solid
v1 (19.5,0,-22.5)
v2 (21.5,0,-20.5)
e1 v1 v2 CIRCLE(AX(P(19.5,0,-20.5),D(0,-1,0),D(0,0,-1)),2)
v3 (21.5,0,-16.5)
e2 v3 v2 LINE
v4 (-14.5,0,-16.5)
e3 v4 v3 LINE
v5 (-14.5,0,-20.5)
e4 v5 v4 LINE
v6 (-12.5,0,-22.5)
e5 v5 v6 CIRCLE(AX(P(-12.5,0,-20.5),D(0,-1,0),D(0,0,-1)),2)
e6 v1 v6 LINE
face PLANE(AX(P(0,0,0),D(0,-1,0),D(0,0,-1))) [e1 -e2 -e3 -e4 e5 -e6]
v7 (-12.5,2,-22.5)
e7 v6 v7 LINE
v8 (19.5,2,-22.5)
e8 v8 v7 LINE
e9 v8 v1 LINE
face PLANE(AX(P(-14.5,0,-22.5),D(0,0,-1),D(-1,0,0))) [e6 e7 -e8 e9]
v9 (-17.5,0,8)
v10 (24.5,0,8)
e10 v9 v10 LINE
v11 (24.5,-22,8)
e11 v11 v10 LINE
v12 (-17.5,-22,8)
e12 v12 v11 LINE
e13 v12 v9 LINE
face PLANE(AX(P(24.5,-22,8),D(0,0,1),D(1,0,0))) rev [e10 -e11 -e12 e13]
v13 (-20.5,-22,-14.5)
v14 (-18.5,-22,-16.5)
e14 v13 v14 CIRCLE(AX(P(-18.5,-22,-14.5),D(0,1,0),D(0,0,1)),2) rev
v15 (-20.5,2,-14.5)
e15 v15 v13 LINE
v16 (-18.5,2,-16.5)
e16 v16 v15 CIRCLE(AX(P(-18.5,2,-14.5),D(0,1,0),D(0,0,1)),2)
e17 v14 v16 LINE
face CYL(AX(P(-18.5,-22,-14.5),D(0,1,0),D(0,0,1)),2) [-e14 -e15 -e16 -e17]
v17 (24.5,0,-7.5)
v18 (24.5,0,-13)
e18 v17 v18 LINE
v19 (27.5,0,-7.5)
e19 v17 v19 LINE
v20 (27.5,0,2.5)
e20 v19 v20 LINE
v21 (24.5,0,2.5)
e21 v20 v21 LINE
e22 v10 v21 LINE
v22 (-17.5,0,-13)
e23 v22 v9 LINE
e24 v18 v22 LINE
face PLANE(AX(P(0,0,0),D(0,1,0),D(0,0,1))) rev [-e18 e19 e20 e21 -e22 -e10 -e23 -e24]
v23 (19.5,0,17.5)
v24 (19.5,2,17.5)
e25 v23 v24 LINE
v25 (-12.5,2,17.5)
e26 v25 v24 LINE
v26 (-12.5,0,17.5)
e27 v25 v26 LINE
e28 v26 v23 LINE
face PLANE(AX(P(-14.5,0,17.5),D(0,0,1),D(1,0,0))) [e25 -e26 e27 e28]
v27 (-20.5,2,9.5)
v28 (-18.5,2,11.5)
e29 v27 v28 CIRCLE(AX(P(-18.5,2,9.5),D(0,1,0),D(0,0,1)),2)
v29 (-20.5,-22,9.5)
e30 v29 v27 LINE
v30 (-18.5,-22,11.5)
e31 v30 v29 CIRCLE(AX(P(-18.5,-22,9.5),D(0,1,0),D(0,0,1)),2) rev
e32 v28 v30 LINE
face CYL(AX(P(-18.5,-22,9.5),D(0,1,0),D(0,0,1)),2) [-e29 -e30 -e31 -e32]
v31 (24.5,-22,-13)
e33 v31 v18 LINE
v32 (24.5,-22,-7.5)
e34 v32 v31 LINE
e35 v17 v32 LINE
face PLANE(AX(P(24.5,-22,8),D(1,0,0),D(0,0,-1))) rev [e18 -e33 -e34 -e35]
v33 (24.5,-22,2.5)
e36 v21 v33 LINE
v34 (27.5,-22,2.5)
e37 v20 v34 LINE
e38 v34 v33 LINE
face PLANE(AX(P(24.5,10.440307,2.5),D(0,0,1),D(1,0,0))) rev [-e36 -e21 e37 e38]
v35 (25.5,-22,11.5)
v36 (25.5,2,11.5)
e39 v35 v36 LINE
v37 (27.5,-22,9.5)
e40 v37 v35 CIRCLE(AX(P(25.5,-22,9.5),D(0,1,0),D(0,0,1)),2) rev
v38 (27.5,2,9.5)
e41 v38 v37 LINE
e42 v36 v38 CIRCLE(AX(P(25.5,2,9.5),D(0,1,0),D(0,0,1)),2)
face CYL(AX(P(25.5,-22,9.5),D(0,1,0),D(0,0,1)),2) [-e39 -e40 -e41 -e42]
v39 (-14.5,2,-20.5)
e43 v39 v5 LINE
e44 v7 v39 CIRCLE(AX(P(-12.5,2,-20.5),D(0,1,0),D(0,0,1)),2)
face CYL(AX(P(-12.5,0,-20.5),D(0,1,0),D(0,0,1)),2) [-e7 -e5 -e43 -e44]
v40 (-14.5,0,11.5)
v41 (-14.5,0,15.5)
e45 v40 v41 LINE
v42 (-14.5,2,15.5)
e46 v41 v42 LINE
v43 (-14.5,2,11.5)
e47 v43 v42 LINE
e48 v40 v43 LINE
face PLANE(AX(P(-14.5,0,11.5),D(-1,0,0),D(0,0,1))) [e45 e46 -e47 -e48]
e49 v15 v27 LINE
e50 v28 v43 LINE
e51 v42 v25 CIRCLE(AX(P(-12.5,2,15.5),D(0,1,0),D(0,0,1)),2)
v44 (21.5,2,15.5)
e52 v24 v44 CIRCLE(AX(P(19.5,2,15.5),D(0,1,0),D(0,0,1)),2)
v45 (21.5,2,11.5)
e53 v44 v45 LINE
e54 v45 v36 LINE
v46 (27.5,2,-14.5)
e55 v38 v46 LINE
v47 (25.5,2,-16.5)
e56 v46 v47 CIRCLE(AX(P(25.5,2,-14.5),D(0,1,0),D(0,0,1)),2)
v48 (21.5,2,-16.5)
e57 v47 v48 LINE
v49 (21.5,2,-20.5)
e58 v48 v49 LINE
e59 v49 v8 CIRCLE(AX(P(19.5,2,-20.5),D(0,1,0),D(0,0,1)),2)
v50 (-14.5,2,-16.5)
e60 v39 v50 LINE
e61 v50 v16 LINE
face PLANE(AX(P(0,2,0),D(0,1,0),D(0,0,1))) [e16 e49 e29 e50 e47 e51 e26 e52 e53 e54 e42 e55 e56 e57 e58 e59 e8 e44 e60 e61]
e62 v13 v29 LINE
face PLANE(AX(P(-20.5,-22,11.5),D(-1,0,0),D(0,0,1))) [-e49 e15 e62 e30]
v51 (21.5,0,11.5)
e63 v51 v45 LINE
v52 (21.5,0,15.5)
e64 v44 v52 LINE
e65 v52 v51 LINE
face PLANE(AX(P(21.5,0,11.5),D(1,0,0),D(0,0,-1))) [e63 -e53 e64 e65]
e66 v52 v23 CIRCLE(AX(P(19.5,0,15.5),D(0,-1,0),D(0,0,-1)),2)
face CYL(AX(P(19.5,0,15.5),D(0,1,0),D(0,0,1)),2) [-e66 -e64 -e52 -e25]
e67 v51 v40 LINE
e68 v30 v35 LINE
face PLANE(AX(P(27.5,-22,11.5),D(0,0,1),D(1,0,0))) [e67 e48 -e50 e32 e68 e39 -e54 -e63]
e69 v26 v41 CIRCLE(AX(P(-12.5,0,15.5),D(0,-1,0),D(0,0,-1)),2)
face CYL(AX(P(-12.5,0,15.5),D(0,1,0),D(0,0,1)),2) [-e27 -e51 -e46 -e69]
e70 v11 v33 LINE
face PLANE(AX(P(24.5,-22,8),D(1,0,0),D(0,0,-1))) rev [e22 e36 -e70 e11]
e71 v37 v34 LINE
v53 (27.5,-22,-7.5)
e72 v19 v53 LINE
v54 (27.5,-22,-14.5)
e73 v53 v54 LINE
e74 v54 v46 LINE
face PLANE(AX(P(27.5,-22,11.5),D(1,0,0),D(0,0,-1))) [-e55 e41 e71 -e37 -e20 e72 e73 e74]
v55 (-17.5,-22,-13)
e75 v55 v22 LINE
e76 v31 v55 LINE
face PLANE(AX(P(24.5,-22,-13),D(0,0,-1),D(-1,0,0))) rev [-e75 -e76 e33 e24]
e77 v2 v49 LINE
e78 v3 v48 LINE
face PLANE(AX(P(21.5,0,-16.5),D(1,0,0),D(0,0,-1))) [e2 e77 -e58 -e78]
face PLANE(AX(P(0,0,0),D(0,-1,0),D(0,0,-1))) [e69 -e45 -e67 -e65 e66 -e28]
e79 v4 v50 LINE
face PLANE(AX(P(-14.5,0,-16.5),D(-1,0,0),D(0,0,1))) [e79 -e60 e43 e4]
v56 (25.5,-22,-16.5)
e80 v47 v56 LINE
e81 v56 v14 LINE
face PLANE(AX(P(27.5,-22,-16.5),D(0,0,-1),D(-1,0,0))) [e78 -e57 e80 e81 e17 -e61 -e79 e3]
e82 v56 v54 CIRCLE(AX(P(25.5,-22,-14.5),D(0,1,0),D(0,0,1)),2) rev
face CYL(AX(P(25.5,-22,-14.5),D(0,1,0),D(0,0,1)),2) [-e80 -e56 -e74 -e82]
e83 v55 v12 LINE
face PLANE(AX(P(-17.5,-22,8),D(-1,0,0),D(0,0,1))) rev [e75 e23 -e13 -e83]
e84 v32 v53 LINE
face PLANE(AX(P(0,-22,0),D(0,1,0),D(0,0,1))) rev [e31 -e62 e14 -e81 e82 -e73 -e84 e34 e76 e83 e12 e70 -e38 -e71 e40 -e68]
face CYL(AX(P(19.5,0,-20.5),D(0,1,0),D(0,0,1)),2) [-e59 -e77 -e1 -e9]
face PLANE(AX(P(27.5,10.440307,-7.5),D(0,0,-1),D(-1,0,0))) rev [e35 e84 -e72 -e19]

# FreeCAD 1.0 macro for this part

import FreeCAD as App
import Part
import Sketcher


def edges_at(feature, points):
    """Names of the edges that pass closest to the given points."""
    edges = feature.Shape.Edges
    near = lambda p: min(range(len(edges)), key=lambda i: edges[i].distToShape(Part.Vertex(*p))[0])
    return sorted({f"Edge{near(p) + 1}" for p in points})

doc = App.newDocument("Part")
body = doc.addObject("PartDesign::Body", "Body")

# Sketch on XZ plane
sketch1 = body.newObject("Sketcher::SketchObject", "Sketch")
sketch1.AttachmentSupport = (doc.getObject("XZ_Plane"), [""])
sketch1.MapMode = "FlatFace"
sketch1.addGeometry([
    Part.LineSegment(App.Vector(27.5, 11.5, 0), App.Vector(27.5, -16.5, 0)),  # 0
    Part.LineSegment(App.Vector(27.5, -16.5, 0), App.Vector(-20.5, -16.5, 0)),  # 1
    Part.LineSegment(App.Vector(-20.5, -16.5, 0), App.Vector(-20.5, 11.5, 0)),  # 2
    Part.LineSegment(App.Vector(-20.5, 11.5, 0), App.Vector(27.5, 11.5, 0)),  # 3
    Part.LineSegment(App.Vector(-17.5, -13, 0), App.Vector(24.5, -13, 0)),  # 4
    Part.LineSegment(App.Vector(24.5, -13, 0), App.Vector(24.5, 8, 0)),  # 5
    Part.LineSegment(App.Vector(24.5, 8, 0), App.Vector(-17.5, 8, 0)),  # 6
    Part.LineSegment(App.Vector(-17.5, 8, 0), App.Vector(-17.5, -13, 0)),  # 7
], False)
sketch1.addConstraint([
    Sketcher.Constraint("Coincident", 0, 2, 1, 1),
    Sketcher.Constraint("Coincident", 1, 2, 2, 1),
    Sketcher.Constraint("Coincident", 2, 2, 3, 1),
    Sketcher.Constraint("Coincident", 3, 2, 0, 1),
    Sketcher.Constraint("Coincident", 4, 2, 5, 1),
    Sketcher.Constraint("Coincident", 5, 2, 6, 1),
    Sketcher.Constraint("Coincident", 6, 2, 7, 1),
    Sketcher.Constraint("Coincident", 7, 2, 4, 1),
    Sketcher.Constraint("Vertical", 0),
    Sketcher.Constraint("Horizontal", 1),
    Sketcher.Constraint("Vertical", 2),
    Sketcher.Constraint("Horizontal", 3),
    Sketcher.Constraint("Horizontal", 4),
    Sketcher.Constraint("Vertical", 5),
    Sketcher.Constraint("Horizontal", 6),
    Sketcher.Constraint("Vertical", 7),
    Sketcher.Constraint("DistanceX", 1, 2, 1, 1, 48.0),
    Sketcher.Constraint("DistanceX", 4, 1, 4, 2, 42.0),
    Sketcher.Constraint("DistanceY", 0, 2, 0, 1, 28.0),
    Sketcher.Constraint("DistanceY", 5, 1, 5, 2, 21.0),
    Sketcher.Constraint("DistanceY", 4, 2, -1, 1, 13.0),
    Sketcher.Constraint("DistanceX", 4, 2, 0, 2, 3.0),
    Sketcher.Constraint("DistanceX", -1, 1, 0, 2, 27.5),
    Sketcher.Constraint("DistanceY", 0, 2, -1, 1, 16.5),
])
pad1 = body.newObject("PartDesign::Pad", "Pad")
pad1.Profile = sketch1
pad1.Length = 22

# Sketch on XZ plane
sketch2 = body.newObject("Sketcher::SketchObject", "Sketch001")
sketch2.AttachmentSupport = (doc.getObject("XZ_Plane"), [""])
sketch2.MapMode = "FlatFace"
sketch2.addGeometry([
    Part.LineSegment(App.Vector(27.5, 11.5, 0), App.Vector(27.5, -16.5, 0)),
    Part.LineSegment(App.Vector(27.5, -16.5, 0), App.Vector(-20.5, -16.5, 0)),
    Part.LineSegment(App.Vector(-20.5, -16.5, 0), App.Vector(-20.5, 11.5, 0)),
    Part.LineSegment(App.Vector(-20.5, 11.5, 0), App.Vector(27.5, 11.5, 0)),
], False)
sketch2.addConstraint([
    Sketcher.Constraint("Coincident", 0, 2, 1, 1),
    Sketcher.Constraint("Coincident", 1, 2, 2, 1),
    Sketcher.Constraint("Coincident", 2, 2, 3, 1),
    Sketcher.Constraint("Coincident", 3, 2, 0, 1),
    Sketcher.Constraint("Vertical", 0),
    Sketcher.Constraint("Horizontal", 1),
    Sketcher.Constraint("Vertical", 2),
    Sketcher.Constraint("Horizontal", 3),
    Sketcher.Constraint("DistanceX", 1, 2, 1, 1, 48.0),
    Sketcher.Constraint("DistanceY", 0, 2, 0, 1, 28.0),
    Sketcher.Constraint("DistanceX", -1, 1, 0, 2, 27.5),
    Sketcher.Constraint("DistanceY", 0, 2, -1, 1, 16.5),
])
pad2 = body.newObject("PartDesign::Pad", "Pad001")
pad2.Profile = sketch2
pad2.Length = 2
pad2.Reversed = True
doc.recompute()

fillet = body.newObject("PartDesign::Fillet", "Fillet")
fillet.Base = (pad2, edges_at(pad2, [
    (27.5, -10, 11.5),
    (-20.5, -10, 11.5),
    (-20.5, -10, -16.5),
    (27.5, -10, -16.5),
]))
fillet.Radius = 2

# Sketch on XZ plane
sketch3 = body.newObject("Sketcher::SketchObject", "Sketch002")
sketch3.AttachmentSupport = (doc.getObject("XZ_Plane"), [""])
sketch3.MapMode = "FlatFace"
sketch3.AttachmentOffset = App.Placement(App.Vector(0, 0, -2), App.Rotation())
sketch3.addGeometry([
    Part.LineSegment(App.Vector(-14.5, -22.5, 0), App.Vector(-14.5, -16.5, 0)),  # 0
    Part.LineSegment(App.Vector(-14.5, -16.5, 0), App.Vector(21.5, -16.5, 0)),  # 1
    Part.LineSegment(App.Vector(21.5, -16.5, 0), App.Vector(21.5, -22.5, 0)),  # 2
    Part.LineSegment(App.Vector(21.5, -22.5, 0), App.Vector(-14.5, -22.5, 0)),  # 3
    Part.LineSegment(App.Vector(-14.5, 11.5, 0), App.Vector(-14.5, 17.5, 0)),  # 4
    Part.LineSegment(App.Vector(-14.5, 17.5, 0), App.Vector(21.5, 17.5, 0)),  # 5
    Part.LineSegment(App.Vector(21.5, 17.5, 0), App.Vector(21.5, 11.5, 0)),  # 6
    Part.LineSegment(App.Vector(21.5, 11.5, 0), App.Vector(-14.5, 11.5, 0)),  # 7
], False)
sketch3.addConstraint([
    Sketcher.Constraint("Coincident", 0, 2, 1, 1),
    Sketcher.Constraint("Coincident", 1, 2, 2, 1),
    Sketcher.Constraint("Coincident", 2, 2, 3, 1),
    Sketcher.Constraint("Coincident", 3, 2, 0, 1),
    Sketcher.Constraint("Coincident", 4, 2, 5, 1),
    Sketcher.Constraint("Coincident", 5, 2, 6, 1),
    Sketcher.Constraint("Coincident", 6, 2, 7, 1),
    Sketcher.Constraint("Coincident", 7, 2, 4, 1),
    Sketcher.Constraint("Vertical", 0),
    Sketcher.Constraint("Horizontal", 1),
    Sketcher.Constraint("Vertical", 2),
    Sketcher.Constraint("Horizontal", 3),
    Sketcher.Constraint("Vertical", 4),
    Sketcher.Constraint("Horizontal", 5),
    Sketcher.Constraint("Vertical", 6),
    Sketcher.Constraint("Horizontal", 7),
    Sketcher.Constraint("Vertical", 3, 2, 4, 2),
    Sketcher.Constraint("Vertical", 2, 2, 5, 2),
    Sketcher.Constraint("Equal", 2, 4),
    Sketcher.Constraint("DistanceX", 1, 1, 1, 2, 36.0),
    Sketcher.Constraint("DistanceY", 0, 1, 0, 2, 6.0),
    Sketcher.Constraint("DistanceY", 0, 2, 4, 2, 34.0),
    Sketcher.Constraint("DistanceX", 0, 2, -1, 1, 14.5),
    Sketcher.Constraint("DistanceY", 0, 2, -1, 1, 16.5),
])
pad3 = body.newObject("PartDesign::Pad", "Pad002")
pad3.Profile = sketch3
pad3.Length = 2
doc.recompute()

fillet2 = body.newObject("PartDesign::Fillet", "Fillet001")
fillet2.Base = (pad3, edges_at(pad3, [
    (-14.5, 1, -22.5),
    (21.5, 1, -22.5),
    (21.5, 1, 17.5),
    (-14.5, 1, 17.5),
]))
fillet2.Radius = 2

# Sketch on XZ plane
sketch4 = body.newObject("Sketcher::SketchObject", "Sketch003")
sketch4.AttachmentSupport = (doc.getObject("XZ_Plane"), [""])
sketch4.MapMode = "FlatFace"
sketch4.AttachmentOffset = App.Placement(App.Vector(0, 0, 22), App.Rotation())
sketch4.addGeometry([
    Part.LineSegment(App.Vector(24.5, 2.5, 0), App.Vector(24.5, -7.5, 0)),
    Part.LineSegment(App.Vector(24.5, -7.5, 0), App.Vector(27.5, -7.5, 0)),
    Part.LineSegment(App.Vector(27.5, -7.5, 0), App.Vector(27.5, 2.5, 0)),
    Part.LineSegment(App.Vector(27.5, 2.5, 0), App.Vector(24.5, 2.5, 0)),
], False)
sketch4.addConstraint([
    Sketcher.Constraint("Coincident", 0, 2, 1, 1),
    Sketcher.Constraint("Coincident", 1, 2, 2, 1),
    Sketcher.Constraint("Coincident", 2, 2, 3, 1),
    Sketcher.Constraint("Coincident", 3, 2, 0, 1),
    Sketcher.Constraint("Vertical", 0),
    Sketcher.Constraint("Horizontal", 1),
    Sketcher.Constraint("Vertical", 2),
    Sketcher.Constraint("Horizontal", 3),
    Sketcher.Constraint("DistanceX", 1, 1, 1, 2, 3.0),
    Sketcher.Constraint("DistanceY", 0, 2, 0, 1, 10.0),
    Sketcher.Constraint("DistanceX", -1, 1, 0, 2, 24.5),
    Sketcher.Constraint("DistanceY", 0, 2, -1, 1, 7.5),
])
pocket1 = body.newObject("PartDesign::Pocket", "Pocket")
pocket1.Profile = sketch4
pocket1.Length = 22

doc.recompute()
